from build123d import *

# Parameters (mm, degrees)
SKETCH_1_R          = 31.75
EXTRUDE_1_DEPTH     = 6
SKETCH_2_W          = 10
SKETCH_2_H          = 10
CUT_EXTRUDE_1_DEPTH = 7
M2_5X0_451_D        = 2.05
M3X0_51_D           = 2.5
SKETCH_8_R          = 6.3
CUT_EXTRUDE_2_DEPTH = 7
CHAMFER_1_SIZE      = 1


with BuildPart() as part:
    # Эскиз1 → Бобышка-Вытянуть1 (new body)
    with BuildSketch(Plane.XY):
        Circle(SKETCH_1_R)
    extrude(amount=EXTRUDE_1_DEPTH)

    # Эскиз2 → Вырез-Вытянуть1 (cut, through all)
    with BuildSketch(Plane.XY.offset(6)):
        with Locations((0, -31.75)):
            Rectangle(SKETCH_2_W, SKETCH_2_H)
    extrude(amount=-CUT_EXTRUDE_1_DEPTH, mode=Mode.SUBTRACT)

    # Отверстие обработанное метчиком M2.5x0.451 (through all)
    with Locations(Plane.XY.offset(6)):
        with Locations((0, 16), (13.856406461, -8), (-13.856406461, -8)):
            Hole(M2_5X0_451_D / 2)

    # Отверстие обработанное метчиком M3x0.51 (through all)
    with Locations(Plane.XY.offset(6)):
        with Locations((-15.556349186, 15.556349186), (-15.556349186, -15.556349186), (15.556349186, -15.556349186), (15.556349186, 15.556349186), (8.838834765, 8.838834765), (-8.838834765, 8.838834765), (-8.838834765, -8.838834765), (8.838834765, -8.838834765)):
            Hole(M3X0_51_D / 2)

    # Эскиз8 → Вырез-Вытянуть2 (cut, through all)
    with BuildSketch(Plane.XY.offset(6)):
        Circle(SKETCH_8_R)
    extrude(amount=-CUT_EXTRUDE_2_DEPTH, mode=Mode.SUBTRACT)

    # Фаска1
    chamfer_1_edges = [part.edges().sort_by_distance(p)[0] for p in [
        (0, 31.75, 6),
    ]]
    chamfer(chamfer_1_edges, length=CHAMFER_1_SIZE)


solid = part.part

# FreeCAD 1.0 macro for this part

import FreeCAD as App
import Part
import Sketcher
Q = App.Units.Quantity


def edges_at(feature, points):
    """Names of the edges that pass closest to the given points."""
    edges = feature.Shape.Edges
    near = lambda p: min(range(len(edges)), key=lambda i: edges[i].distToShape(Part.Vertex(*p))[0])
    return sorted({f"Edge{near(p) + 1}" for p in points})

doc = App.newDocument("Part")
body = doc.addObject("PartDesign::Body", "Body")

sketch1 = doc.addObject("Sketcher::SketchObject", "Sketch")
body.addObject(sketch1)
sketch1.AttachmentSupport = (doc.XY_Plane, [""])
sketch1.MapMode = "FlatFace"
sketch1.addGeometry(Part.Circle(App.Vector(0, 0, 0), App.Vector(0, 0, 1), 31.75), False)
sketch1.addConstraint([
    Sketcher.Constraint("Coincident", 0, 3, -1, 1),
    Sketcher.Constraint("Diameter", 0, Q("63.5 mm")),
])
pad1 = doc.addObject("PartDesign::Pad", "Pad")
body.addObject(pad1)
pad1.Profile = sketch1
pad1.Length = 6

sketch2 = doc.addObject("Sketcher::SketchObject", "Sketch001")
body.addObject(sketch2)
sketch2.AttachmentSupport = (doc.XY_Plane, [""])
sketch2.MapMode = "FlatFace"
sketch2.AttachmentOffset = App.Placement(App.Vector(0, 0, 6), App.Rotation())
sketch2.addGeometry([
    Part.LineSegment(App.Vector(-5, -26.75, 0), App.Vector(-5, -36.75, 0)),
    Part.LineSegment(App.Vector(-5, -36.75, 0), App.Vector(5, -36.75, 0)),
    Part.LineSegment(App.Vector(5, -36.75, 0), App.Vector(5, -26.75, 0)),
    Part.LineSegment(App.Vector(5, -26.75, 0), App.Vector(-5, -26.75, 0)),
], False)
sketch2.addConstraint([
    Sketcher.Constraint("Coincident", 0, 2, 1, 1),
    Sketcher.Constraint("Coincident", 1, 2, 2, 1),
    Sketcher.Constraint("Coincident", 2, 2, 3, 1),
    Sketcher.Constraint("Coincident", 3, 2, 0, 1),
    Sketcher.Constraint("Vertical", 0),
    Sketcher.Constraint("Horizontal", 1),
    Sketcher.Constraint("Vertical", 2),
    Sketcher.Constraint("Horizontal", 3),
    Sketcher.Constraint("Equal", 3, 0),
    Sketcher.Constraint("DistanceX", 1, 1, 1, 2, Q("10 mm")),
    Sketcher.Constraint("DistanceX", 0, 2, -1, 1, Q("5 mm")),
    Sketcher.Constraint("DistanceY", 0, 2, -1, 1, Q("36.75 mm")),
])
pocket1 = doc.addObject("PartDesign::Pocket", "Pocket")
body.addObject(pocket1)
pocket1.Profile = sketch2
pocket1.Type = "ThroughAll"

sketch3 = doc.addObject("Sketcher::SketchObject", "Sketch002")
body.addObject(sketch3)
sketch3.AttachmentSupport = (doc.XY_Plane, [""])
sketch3.MapMode = "FlatFace"
sketch3.AttachmentOffset = App.Placement(App.Vector(0, 0, 6), App.Rotation())
sketch3.addGeometry([
    Part.Circle(App.Vector(0, 16, 0), App.Vector(0, 0, 1), 1.025),
    Part.Circle(App.Vector(13.856406, -8, 0), App.Vector(0, 0, 1), 1.025),
    Part.Circle(App.Vector(-13.856406, -8, 0), App.Vector(0, 0, 1), 1.025),
], False)
sketch3.addConstraint([
    Sketcher.Constraint("Equal", 0, 1),
    Sketcher.Constraint("Equal", 1, 2),
    Sketcher.Constraint("Symmetric", 1, 3, 2, 3, -2),
    Sketcher.Constraint("PointOnObject", 0, 3, -2),
    Sketcher.Constraint("Diameter", 0, Q("2.05 mm")),
    Sketcher.Constraint("DistanceY", -1, 1, 0, 3, Q("16 mm")),
    Sketcher.Constraint("DistanceY", 1, 3, -1, 1, Q("8 mm")),
    Sketcher.Constraint("DistanceX", -1, 1, 1, 3, Q("13.856406 mm")),
])
doc.recompute()
hole = doc.addObject("PartDesign::Hole", "Hole")
body.addObject(hole)
hole.Profile = sketch3
hole.ThreadType = "None"
hole.Diameter = 2.05
hole.DepthType = "ThroughAll"

sketch4 = doc.addObject("Sketcher::SketchObject", "Sketch003")
body.addObject(sketch4)
sketch4.AttachmentSupport = (doc.XY_Plane, [""])
sketch4.MapMode = "FlatFace"
sketch4.AttachmentOffset = App.Placement(App.Vector(0, 0, 6), App.Rotation())
sketch4.addGeometry([
    Part.Circle(App.Vector(-15.556349, 15.556349, 0), App.Vector(0, 0, 1), 1.25),
    Part.Circle(App.Vector(-15.556349, -15.556349, 0), App.Vector(0, 0, 1), 1.25),
    Part.Circle(App.Vector(15.556349, -15.556349, 0), App.Vector(0, 0, 1), 1.25),
    Part.Circle(App.Vector(15.556349, 15.556349, 0), App.Vector(0, 0, 1), 1.25),
    Part.Circle(App.Vector(8.838835, 8.838835, 0), App.Vector(0, 0, 1), 1.25),
    Part.Circle(App.Vector(-8.838835, 8.838835, 0), App.Vector(0, 0, 1), 1.25),
    Part.Circle(App.Vector(-8.838835, -8.838835, 0), App.Vector(0, 0, 1), 1.25),
    Part.Circle(App.Vector(8.838835, -8.838835, 0), App.Vector(0, 0, 1), 1.25),
], False)
sketch4.addConstraint([
    Sketcher.Constraint("Equal", 0, 1),
    Sketcher.Constraint("Equal", 1, 2),
    Sketcher.Constraint("Equal", 2, 3),
    Sketcher.Constraint("Equal", 3, 4),
    Sketcher.Constraint("Equal", 4, 5),
    Sketcher.Constraint("Equal", 5, 6),
    Sketcher.Constraint("Equal", 6, 7),
    Sketcher.Constraint("Symmetric", 0, 3, 2, 3, -1, 1),
    Sketcher.Constraint("Symmetric", 1, 3, 3, 3, -1, 1),
    Sketcher.Constraint("Symmetric", 4, 3, 6, 3, -1, 1),
    Sketcher.Constraint("Symmetric", 5, 3, 7, 3, -1, 1),
    Sketcher.Constraint("Symmetric", 1, 3, 2, 3, -2),
    Sketcher.Constraint("Symmetric", 4, 3, 5, 3, -2),
    Sketcher.Constraint("Diameter", 0, Q("2.5 mm")),
    Sketcher.Constraint("DistanceY", 1, 3, 0, 3, Q("31.112698 mm")),
    Sketcher.Constraint("DistanceX", 1, 3, 2, 3, Q("31.112698 mm")),
    Sketcher.Constraint("DistanceX", 5, 3, 4, 3, Q("17.67767 mm")),
    Sketcher.Constraint("DistanceY", 6, 3, 5, 3, Q("17.67767 mm")),
])
doc.recompute()
hole2 = doc.addObject("PartDesign::Hole", "Hole001")
body.addObject(hole2)
hole2.Profile = sketch4
hole2.ThreadType = "None"
hole2.Diameter = 2.5
hole2.DepthType = "ThroughAll"

sketch5 = doc.addObject("Sketcher::SketchObject", "Sketch004")
body.addObject(sketch5)
sketch5.AttachmentSupport = (doc.XY_Plane, [""])
sketch5.MapMode = "FlatFace"
sketch5.AttachmentOffset = App.Placement(App.Vector(0, 0, 6), App.Rotation())
sketch5.addGeometry(Part.Circle(App.Vector(0, 0, 0), App.Vector(0, 0, 1), 6.3), False)
sketch5.addConstraint([
    Sketcher.Constraint("Coincident", 0, 3, -1, 1),
    Sketcher.Constraint("Diameter", 0, Q("12.6 mm")),
])
pocket2 = doc.addObject("PartDesign::Pocket", "Pocket001")
body.addObject(pocket2)
pocket2.Profile = sketch5
pocket2.Type = "ThroughAll"
doc.recompute()

chamfer = doc.addObject("PartDesign::Chamfer", "Chamfer")
body.addObject(chamfer)
chamfer.Base = (pocket2, edges_at(pocket2, [(0, 31.75, 6)]))
chamfer.Size = 1

doc.recompute()
